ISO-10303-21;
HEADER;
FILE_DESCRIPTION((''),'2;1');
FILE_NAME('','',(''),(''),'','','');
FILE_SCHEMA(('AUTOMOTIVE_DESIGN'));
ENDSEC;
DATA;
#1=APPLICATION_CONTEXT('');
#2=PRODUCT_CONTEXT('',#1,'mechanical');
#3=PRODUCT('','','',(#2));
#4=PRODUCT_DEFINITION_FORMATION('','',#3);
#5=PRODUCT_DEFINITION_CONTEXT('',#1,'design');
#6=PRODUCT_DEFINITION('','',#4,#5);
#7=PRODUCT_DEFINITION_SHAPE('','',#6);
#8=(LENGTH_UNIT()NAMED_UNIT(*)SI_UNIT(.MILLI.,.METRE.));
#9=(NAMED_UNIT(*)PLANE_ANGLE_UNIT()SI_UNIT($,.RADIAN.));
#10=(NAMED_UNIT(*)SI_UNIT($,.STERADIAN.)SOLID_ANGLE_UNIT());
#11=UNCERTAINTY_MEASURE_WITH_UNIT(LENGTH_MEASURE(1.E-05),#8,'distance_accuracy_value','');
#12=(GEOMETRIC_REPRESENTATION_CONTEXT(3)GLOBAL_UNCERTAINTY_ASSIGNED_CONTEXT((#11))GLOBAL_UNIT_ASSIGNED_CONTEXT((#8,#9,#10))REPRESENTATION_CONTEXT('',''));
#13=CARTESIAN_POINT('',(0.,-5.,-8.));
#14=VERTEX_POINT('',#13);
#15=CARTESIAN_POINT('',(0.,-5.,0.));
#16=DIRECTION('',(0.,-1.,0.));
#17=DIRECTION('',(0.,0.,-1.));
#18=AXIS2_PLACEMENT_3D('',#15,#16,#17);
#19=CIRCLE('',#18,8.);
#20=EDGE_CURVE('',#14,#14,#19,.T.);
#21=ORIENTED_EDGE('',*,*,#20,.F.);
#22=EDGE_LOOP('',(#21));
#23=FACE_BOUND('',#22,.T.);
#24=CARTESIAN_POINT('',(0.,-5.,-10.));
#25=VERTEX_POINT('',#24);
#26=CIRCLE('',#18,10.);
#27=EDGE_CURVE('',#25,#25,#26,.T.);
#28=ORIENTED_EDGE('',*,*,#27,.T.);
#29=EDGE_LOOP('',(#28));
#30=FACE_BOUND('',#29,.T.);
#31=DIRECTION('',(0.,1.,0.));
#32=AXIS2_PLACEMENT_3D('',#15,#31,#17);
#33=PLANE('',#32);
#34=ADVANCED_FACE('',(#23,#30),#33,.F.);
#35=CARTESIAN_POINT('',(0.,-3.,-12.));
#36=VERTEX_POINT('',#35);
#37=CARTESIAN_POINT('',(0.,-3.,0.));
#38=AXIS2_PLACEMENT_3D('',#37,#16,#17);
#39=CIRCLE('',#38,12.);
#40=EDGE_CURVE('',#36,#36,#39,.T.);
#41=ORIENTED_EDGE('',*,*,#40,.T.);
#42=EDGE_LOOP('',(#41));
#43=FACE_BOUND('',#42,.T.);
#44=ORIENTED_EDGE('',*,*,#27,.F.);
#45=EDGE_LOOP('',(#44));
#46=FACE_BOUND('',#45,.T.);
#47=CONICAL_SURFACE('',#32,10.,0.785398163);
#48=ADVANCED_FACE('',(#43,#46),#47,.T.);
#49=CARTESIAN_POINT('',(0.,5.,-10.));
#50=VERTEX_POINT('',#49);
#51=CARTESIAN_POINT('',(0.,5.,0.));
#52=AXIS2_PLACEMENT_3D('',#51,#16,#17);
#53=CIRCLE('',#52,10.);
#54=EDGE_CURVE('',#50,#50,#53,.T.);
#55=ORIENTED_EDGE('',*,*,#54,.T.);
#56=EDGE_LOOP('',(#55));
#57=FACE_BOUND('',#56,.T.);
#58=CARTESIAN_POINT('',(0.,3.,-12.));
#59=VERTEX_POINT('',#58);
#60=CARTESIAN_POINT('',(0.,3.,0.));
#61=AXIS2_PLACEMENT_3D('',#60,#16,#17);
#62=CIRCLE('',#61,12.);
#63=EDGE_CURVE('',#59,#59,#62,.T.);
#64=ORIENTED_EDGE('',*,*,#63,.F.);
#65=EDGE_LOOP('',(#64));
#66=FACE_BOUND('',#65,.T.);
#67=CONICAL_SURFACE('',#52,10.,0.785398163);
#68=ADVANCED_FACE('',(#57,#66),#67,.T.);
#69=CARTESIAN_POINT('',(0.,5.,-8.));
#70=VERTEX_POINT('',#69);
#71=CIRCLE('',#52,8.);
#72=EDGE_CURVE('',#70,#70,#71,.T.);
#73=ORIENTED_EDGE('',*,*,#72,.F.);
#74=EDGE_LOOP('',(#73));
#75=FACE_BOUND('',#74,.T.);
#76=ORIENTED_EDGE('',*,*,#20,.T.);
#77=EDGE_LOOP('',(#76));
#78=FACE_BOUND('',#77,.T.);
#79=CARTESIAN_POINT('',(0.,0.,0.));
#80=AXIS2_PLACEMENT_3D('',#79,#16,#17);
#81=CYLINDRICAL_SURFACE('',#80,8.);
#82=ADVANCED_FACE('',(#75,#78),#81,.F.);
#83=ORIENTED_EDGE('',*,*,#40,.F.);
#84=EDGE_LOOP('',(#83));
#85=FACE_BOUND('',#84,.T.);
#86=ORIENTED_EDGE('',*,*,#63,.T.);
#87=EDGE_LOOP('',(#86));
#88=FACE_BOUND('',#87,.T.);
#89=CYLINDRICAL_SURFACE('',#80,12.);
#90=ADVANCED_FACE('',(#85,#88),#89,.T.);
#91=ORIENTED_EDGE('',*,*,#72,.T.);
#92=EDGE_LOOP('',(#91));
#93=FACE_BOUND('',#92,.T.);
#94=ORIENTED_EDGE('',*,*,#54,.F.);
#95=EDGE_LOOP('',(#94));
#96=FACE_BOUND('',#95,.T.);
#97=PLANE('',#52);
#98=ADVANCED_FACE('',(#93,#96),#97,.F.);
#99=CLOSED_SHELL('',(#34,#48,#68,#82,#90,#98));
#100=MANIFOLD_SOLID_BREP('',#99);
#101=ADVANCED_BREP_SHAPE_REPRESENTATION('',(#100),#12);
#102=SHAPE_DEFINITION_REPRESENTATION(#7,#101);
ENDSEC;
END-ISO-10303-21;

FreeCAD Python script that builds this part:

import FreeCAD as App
import Part
import Sketcher
Q = App.Units.Quantity


def add_polygon(sketch, points):
    """Adds a closed chain of lines whose ends are joined by coincident constraints."""
    first, n = sketch.GeometryCount, len(points)
    for a, b in zip(points, points[1:] + points[:1]):
        sketch.addGeometry(Part.LineSegment(App.Vector(*a, 0), App.Vector(*b, 0)), False)
    for i in range(n):
        sketch.addConstraint(Sketcher.Constraint("Coincident", first + i, 2, first + (i + 1) % n, 1))

doc = App.newDocument("Part")
params = doc.addObject("Spreadsheet::Sheet", "Params")
for row, (alias, value) in enumerate([
    ("sketch1_width", "4 mm"),
    ("sketch1_width2", "2 mm"),
    ("sketch1_height", "5 mm"),
    ("sketch1_height2", "3 mm"),
    ("revolution_angle", "360 deg"),
], start=1):
    params.set(f"A{row}", alias)
    params.set(f"B{row}", "=" + value)
    params.setAlias(f"B{row}", alias)

body = doc.addObject("PartDesign::Body", "Body")

# Sketch on XY plane
sketch1 = body.newObject("Sketcher::SketchObject", "Sketch")
sketch1.AttachmentSupport = (doc.getObject("XY_Plane"), [""])
sketch1.MapMode = "FlatFace"
add_polygon(sketch1, [(8, 5), (8, 0), (12, 0), (12, 3), (10, 5)])  # lines 0-4
sketch1.addConstraint(Sketcher.Constraint("Vertical", 0))
sketch1.addConstraint(Sketcher.Constraint("Horizontal", 1))
sketch1.addConstraint(Sketcher.Constraint("Vertical", 2))
sketch1.addConstraint(Sketcher.Constraint("Horizontal", 4))
sketch1.addConstraint(Sketcher.Constraint("PointOnObject", 0, 2, -1))
sketch1.addConstraint(Sketcher.Constraint("DistanceX", 1, 1, 1, 2, Q("4 mm")))
sketch1.addConstraint(Sketcher.Constraint("DistanceX", 4, 2, 4, 1, Q("2 mm")))
sketch1.addConstraint(Sketcher.Constraint("DistanceY", 0, 2, 0, 1, Q("5 mm")))
sketch1.addConstraint(Sketcher.Constraint("DistanceY", 2, 1, 2, 2, Q("3 mm")))
sketch1.addConstraint(Sketcher.Constraint("DistanceX", -1, 1, 0, 2, Q("8 mm")))
sketch1.setExpression("Constraints[10]", "Params.sketch1_width")
sketch1.setExpression("Constraints[11]", "Params.sketch1_width2")
sketch1.setExpression("Constraints[12]", "Params.sketch1_height")
sketch1.setExpression("Constraints[13]", "Params.sketch1_height2")
revolution = body.newObject("PartDesign::Revolution", "Revolution")
revolution.Profile = sketch1
revolution.ReferenceAxis = (sketch1, ["V_Axis"])
revolution.setExpression("Angle", "Params.revolution_angle")
doc.recompute()

mirrored = body.newObject("PartDesign::Mirrored", "Mirrored")
mirrored.Originals = [revolution]
mirrored.MirrorPlane = (doc.getObject("XZ_Plane"), [""])
body.Tip = mirrored

doc.recompute()
